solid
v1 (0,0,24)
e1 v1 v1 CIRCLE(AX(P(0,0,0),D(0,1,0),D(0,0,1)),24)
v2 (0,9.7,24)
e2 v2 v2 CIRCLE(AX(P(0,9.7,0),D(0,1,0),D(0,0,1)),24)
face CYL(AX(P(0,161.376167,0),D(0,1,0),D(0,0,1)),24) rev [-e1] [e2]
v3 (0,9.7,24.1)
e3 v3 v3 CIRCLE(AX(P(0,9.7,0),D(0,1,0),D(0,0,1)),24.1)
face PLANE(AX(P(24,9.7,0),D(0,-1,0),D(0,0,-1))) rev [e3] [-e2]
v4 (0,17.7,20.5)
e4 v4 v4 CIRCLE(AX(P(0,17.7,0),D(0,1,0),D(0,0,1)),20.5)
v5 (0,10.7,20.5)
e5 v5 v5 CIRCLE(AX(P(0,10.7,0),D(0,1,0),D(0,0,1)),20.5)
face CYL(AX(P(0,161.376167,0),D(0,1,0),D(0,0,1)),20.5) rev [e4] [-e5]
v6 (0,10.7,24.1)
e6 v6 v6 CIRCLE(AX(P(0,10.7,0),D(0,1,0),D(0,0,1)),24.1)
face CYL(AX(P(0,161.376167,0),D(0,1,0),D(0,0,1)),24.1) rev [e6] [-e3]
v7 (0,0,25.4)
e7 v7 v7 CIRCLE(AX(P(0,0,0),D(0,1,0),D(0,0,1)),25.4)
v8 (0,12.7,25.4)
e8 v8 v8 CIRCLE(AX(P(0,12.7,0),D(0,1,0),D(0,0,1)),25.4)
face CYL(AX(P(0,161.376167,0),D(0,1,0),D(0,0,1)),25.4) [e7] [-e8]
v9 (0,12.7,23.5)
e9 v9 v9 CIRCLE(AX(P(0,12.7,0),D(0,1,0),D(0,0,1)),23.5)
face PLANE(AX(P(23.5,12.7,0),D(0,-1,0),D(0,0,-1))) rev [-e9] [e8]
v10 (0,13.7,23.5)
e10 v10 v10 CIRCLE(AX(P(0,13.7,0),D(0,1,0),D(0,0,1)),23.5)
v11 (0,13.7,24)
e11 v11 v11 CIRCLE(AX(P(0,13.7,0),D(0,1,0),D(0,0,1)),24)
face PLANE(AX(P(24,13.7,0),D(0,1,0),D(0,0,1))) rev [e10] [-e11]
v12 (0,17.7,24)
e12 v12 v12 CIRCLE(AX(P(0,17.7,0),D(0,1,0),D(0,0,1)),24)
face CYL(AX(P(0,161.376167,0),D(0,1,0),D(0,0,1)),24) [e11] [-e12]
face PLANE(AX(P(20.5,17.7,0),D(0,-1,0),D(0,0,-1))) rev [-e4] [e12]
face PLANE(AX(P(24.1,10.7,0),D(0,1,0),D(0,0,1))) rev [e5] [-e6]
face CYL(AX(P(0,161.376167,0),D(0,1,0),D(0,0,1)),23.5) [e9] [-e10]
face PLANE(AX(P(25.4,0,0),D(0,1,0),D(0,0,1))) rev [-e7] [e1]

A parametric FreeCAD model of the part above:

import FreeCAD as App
import Part
import Sketcher

doc = App.newDocument("Part")
body = doc.addObject("PartDesign::Body", "Body")

sketch1 = body.newObject("Sketcher::SketchObject", "Sketch")
sketch1.AttachmentSupport = (doc.getObject("XY_Plane"), [""])
sketch1.MapMode = "FlatFace"
sketch1.addGeometry([
    Part.LineSegment(App.Vector(24, 17.7, 0), App.Vector(20.5, 17.7, 0)),
    Part.LineSegment(App.Vector(20.5, 17.7, 0), App.Vector(20.5, 10.7, 0)),
    Part.LineSegment(App.Vector(20.5, 10.7, 0), App.Vector(24.1, 10.7, 0)),
    Part.LineSegment(App.Vector(24.1, 10.7, 0), App.Vector(24.1, 9.7, 0)),
    Part.LineSegment(App.Vector(24.1, 9.7, 0), App.Vector(24, 9.7, 0)),
    Part.LineSegment(App.Vector(24, 9.7, 0), App.Vector(24, 0, 0)),
    Part.LineSegment(App.Vector(24, 0, 0), App.Vector(25.4, 0, 0)),
    Part.LineSegment(App.Vector(25.4, 0, 0), App.Vector(25.4, 12.7, 0)),
    Part.LineSegment(App.Vector(25.4, 12.7, 0), App.Vector(23.5, 12.7, 0)),
    Part.LineSegment(App.Vector(23.5, 12.7, 0), App.Vector(23.5, 13.7, 0)),
    Part.LineSegment(App.Vector(23.5, 13.7, 0), App.Vector(24, 13.7, 0)),
    Part.LineSegment(App.Vector(24, 13.7, 0), App.Vector(24, 17.7, 0)),
], False)
sketch1.addConstraint([
    Sketcher.Constraint("Coincident", 0, 2, 1, 1),
    Sketcher.Constraint("Coincident", 1, 2, 2, 1),
    Sketcher.Constraint("Coincident", 2, 2, 3, 1),
    Sketcher.Constraint("Coincident", 3, 2, 4, 1),
    Sketcher.Constraint("Coincident", 4, 2, 5, 1),
    Sketcher.Constraint("Coincident", 5, 2, 6, 1),
    Sketcher.Constraint("Coincident", 6, 2, 7, 1),
    Sketcher.Constraint("Coincident", 7, 2, 8, 1),
    Sketcher.Constraint("Coincident", 8, 2, 9, 1),
    Sketcher.Constraint("Coincident", 9, 2, 10, 1),
    Sketcher.Constraint("Coincident", 10, 2, 11, 1),
    Sketcher.Constraint("Coincident", 11, 2, 0, 1),
    Sketcher.Constraint("Horizontal", 0),
    Sketcher.Constraint("Vertical", 1),
    Sketcher.Constraint("Horizontal", 2),
    Sketcher.Constraint("Vertical", 3),
    Sketcher.Constraint("Horizontal", 4),
    Sketcher.Constraint("Vertical", 5),
    Sketcher.Constraint("Horizontal", 6),
    Sketcher.Constraint("Vertical", 7),
    Sketcher.Constraint("Horizontal", 8),
    Sketcher.Constraint("Vertical", 9),
    Sketcher.Constraint("Horizontal", 10),
    Sketcher.Constraint("Vertical", 11),
    Sketcher.Constraint("PointOnObject", 5, 2, -1),
    Sketcher.Constraint("Vertical", 5, 2, 10, 2),
    Sketcher.Constraint("Equal", 3, 9),
    Sketcher.Constraint("DistanceY", 1, 2, 1, 1, 7.0),
    Sketcher.Constraint("DistanceY", 3, 2, 3, 1, 1.0),
    Sketcher.Constraint("DistanceY", 11, 1, 11, 2, 4.0),
    Sketcher.Constraint("DistanceX", 0, 2, 0, 1, 3.5),
    Sketcher.Constraint("DistanceX", 2, 1, 2, 2, 3.6),
    Sketcher.Constraint("DistanceX", 6, 1, 6, 2, 1.4),
    Sketcher.Constraint("DistanceX", 8, 2, 8, 1, 1.9),
    Sketcher.Constraint("DistanceY", 5, 2, 5, 1, 9.7),
    Sketcher.Constraint("DistanceX", -1, 1, 4, 2, 24.0),
])
revolution = body.newObject("PartDesign::Revolution", "Revolution")
revolution.Profile = sketch1
revolution.ReferenceAxis = (sketch1, ["V_Axis"])
revolution.Angle = 360

doc.recompute()
